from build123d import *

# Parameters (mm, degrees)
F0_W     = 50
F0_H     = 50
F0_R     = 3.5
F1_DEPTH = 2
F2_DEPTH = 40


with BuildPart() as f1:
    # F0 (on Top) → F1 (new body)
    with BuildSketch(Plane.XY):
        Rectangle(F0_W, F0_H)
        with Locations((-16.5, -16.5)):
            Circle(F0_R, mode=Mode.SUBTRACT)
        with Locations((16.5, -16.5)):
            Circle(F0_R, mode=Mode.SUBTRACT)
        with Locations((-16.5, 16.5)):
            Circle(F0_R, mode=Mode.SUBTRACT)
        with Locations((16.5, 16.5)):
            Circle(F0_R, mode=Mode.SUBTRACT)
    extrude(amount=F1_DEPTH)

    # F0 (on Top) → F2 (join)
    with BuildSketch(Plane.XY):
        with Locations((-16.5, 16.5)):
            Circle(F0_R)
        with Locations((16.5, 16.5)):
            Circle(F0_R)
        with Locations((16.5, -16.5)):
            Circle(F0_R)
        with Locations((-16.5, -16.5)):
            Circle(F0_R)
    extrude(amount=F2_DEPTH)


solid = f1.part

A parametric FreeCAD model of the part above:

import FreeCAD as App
import Part
import Sketcher

doc = App.newDocument("Part")
params = doc.addObject("Spreadsheet::Sheet", "Params")
for row, (alias, value) in enumerate([
    ("sketch1_diameter", "7 mm"),
    ("sketch1_width", "50 mm"),
    ("pad1_length", "2 mm"),
    ("sketch2_diameter", "7 mm"),
    ("pad2_length", "40 mm"),
], start=1):
    params.set(f"A{row}", alias)
    params.set(f"B{row}", "=" + value)
    params.setAlias(f"B{row}", alias)

body = doc.addObject("PartDesign::Body", "Body")

# Sketch on XY plane
sketch1 = body.newObject("Sketcher::SketchObject", "Sketch")
sketch1.AttachmentSupport = (doc.getObject("XY_Plane"), [""])
sketch1.MapMode = "FlatFace"
sketch1.addGeometry(Part.LineSegment(App.Vector(-25, 25, 0), App.Vector(-25, -25, 0)), False)
sketch1.addGeometry(Part.LineSegment(App.Vector(-25, -25, 0), App.Vector(25, -25, 0)), False)
sketch1.addGeometry(Part.LineSegment(App.Vector(25, -25, 0), App.Vector(25, 25, 0)), False)
sketch1.addGeometry(Part.LineSegment(App.Vector(25, 25, 0), App.Vector(-25, 25, 0)), False)
sketch1.addGeometry(Part.Circle(App.Vector(-16.5, -16.5, 0), App.Vector(0, 0, 1), 3.5), False)
sketch1.addGeometry(Part.Circle(App.Vector(16.5, -16.5, 0), App.Vector(0, 0, 1), 3.5), False)
sketch1.addGeometry(Part.Circle(App.Vector(-16.5, 16.5, 0), App.Vector(0, 0, 1), 3.5), False)
sketch1.addGeometry(Part.Circle(App.Vector(16.5, 16.5, 0), App.Vector(0, 0, 1), 3.5), False)
sketch1.addConstraint(Sketcher.Constraint("Coincident", 0, 2, 1, 1))
sketch1.addConstraint(Sketcher.Constraint("Coincident", 1, 2, 2, 1))
sketch1.addConstraint(Sketcher.Constraint("Coincident", 2, 2, 3, 1))
sketch1.addConstraint(Sketcher.Constraint("Coincident", 3, 2, 0, 1))
sketch1.addConstraint(Sketcher.Constraint("Vertical", 0))
sketch1.addConstraint(Sketcher.Constraint("Horizontal", 1))
sketch1.addConstraint(Sketcher.Constraint("Vertical", 2))
sketch1.addConstraint(Sketcher.Constraint("Horizontal", 3))
sketch1.addConstraint(Sketcher.Constraint("Equal", 4, 5))
sketch1.addConstraint(Sketcher.Constraint("Equal", 5, 6))
sketch1.addConstraint(Sketcher.Constraint("Equal", 6, 7))
sketch1.addConstraint(Sketcher.Constraint("Symmetric", 5, 3, 6, 3, -1, 1))
sketch1.addConstraint(Sketcher.Constraint("Symmetric", 4, 3, 7, 3, -1, 1))
sketch1.addConstraint(Sketcher.Constraint("Symmetric", 0, 2, 2, 2, -1, 1))
sketch1.addConstraint(Sketcher.Constraint("Symmetric", 4, 3, 5, 3, -2))
sketch1.addConstraint(Sketcher.Constraint("Equal", 3, 0))
sketch1.addConstraint(Sketcher.Constraint("Diameter", 4, 7.0))
sketch1.addConstraint(Sketcher.Constraint("DistanceX", 1, 1, 1, 2, 50.0))
sketch1.addConstraint(Sketcher.Constraint("DistanceX", 4, 3, 5, 3, 33.0))
sketch1.addConstraint(Sketcher.Constraint("DistanceY", 4, 3, 6, 3, 33.0))
sketch1.setExpression("Constraints[16]", "Params.sketch1_diameter")
sketch1.setExpression("Constraints[17]", "Params.sketch1_width")
pad1 = body.newObject("PartDesign::Pad", "Pad")
pad1.Profile = sketch1
pad1.setExpression("Length", "Params.pad1_length")

# Sketch on XY plane
sketch2 = body.newObject("Sketcher::SketchObject", "Sketch001")
sketch2.AttachmentSupport = (doc.getObject("XY_Plane"), [""])
sketch2.MapMode = "FlatFace"
sketch2.addGeometry(Part.Circle(App.Vector(-16.5, 16.5, 0), App.Vector(0, 0, 1), 3.5), False)
sketch2.addGeometry(Part.Circle(App.Vector(16.5, 16.5, 0), App.Vector(0, 0, 1), 3.5), False)
sketch2.addGeometry(Part.Circle(App.Vector(16.5, -16.5, 0), App.Vector(0, 0, 1), 3.5), False)
sketch2.addGeometry(Part.Circle(App.Vector(-16.5, -16.5, 0), App.Vector(0, 0, 1), 3.5), False)
sketch2.addConstraint(Sketcher.Constraint("Equal", 0, 1))
sketch2.addConstraint(Sketcher.Constraint("Equal", 1, 2))
sketch2.addConstraint(Sketcher.Constraint("Equal", 2, 3))
sketch2.addConstraint(Sketcher.Constraint("Symmetric", 0, 3, 2, 3, -1, 1))
sketch2.addConstraint(Sketcher.Constraint("Symmetric", 1, 3, 3, 3, -1, 1))
sketch2.addConstraint(Sketcher.Constraint("Symmetric", 0, 3, 1, 3, -2))
sketch2.addConstraint(Sketcher.Constraint("Diameter", 0, 7.0))
sketch2.addConstraint(Sketcher.Constraint("DistanceX", 0, 3, 1, 3, 33.0))
sketch2.addConstraint(Sketcher.Constraint("DistanceY", 2, 3, 1, 3, 33.0))
sketch2.setExpression("Constraints[6]", "Params.sketch2_diameter")
pad2 = body.newObject("PartDesign::Pad", "Pad001")
pad2.Profile = sketch2
pad2.setExpression("Length", "Params.pad2_length")

doc.recompute()
